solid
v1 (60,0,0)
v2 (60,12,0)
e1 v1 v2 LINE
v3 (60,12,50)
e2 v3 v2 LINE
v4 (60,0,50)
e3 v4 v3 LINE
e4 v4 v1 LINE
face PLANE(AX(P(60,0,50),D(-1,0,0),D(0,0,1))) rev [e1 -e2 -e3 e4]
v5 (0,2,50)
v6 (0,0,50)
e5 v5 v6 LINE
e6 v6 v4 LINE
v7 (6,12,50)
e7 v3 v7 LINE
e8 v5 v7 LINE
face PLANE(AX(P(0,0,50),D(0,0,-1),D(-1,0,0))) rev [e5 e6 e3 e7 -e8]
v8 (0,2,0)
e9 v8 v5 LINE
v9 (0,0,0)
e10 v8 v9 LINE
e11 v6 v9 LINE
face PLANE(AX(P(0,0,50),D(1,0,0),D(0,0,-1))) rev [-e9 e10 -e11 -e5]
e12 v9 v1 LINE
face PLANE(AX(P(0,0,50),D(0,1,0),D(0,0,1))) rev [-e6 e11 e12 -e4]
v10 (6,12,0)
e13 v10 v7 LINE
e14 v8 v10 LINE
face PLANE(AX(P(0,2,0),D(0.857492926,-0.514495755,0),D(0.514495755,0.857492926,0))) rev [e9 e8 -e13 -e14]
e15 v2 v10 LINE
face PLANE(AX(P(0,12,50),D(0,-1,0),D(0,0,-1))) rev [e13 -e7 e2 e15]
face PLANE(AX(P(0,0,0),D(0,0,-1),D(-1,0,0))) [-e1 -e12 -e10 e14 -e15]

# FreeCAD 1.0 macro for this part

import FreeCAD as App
import Part
import Sketcher

V = App.Vector
Q = App.Units.Quantity


def add_polygon(sketch, points):
    """Adds a closed chain of lines whose ends are joined by coincident constraints."""
    first, n = sketch.GeometryCount, len(points)
    for a, b in zip(points, points[1:] + points[:1]):
        sketch.addGeometry(Part.LineSegment(App.Vector(*a, 0), App.Vector(*b, 0)), False)
    for i in range(n):
        sketch.addConstraint(Sketcher.Constraint("Coincident", first + i, 2, first + (i + 1) % n, 1))

doc = App.newDocument("Part")
body = doc.addObject("PartDesign::Body", "Body")

# Sketch on XY plane
sketch1 = body.newObject("Sketcher::SketchObject", "Sketch")
sketch1.AttachmentSupport = (doc.getObject("XY_Plane"), [""])
sketch1.MapMode = "FlatFace"
add_polygon(sketch1, [(0, 12), (0, 0), (60, 0), (60, 12)])  # lines 0-3
sketch1.addConstraint([
    Sketcher.Constraint("Vertical", 0),
    Sketcher.Constraint("Horizontal", 1),
    Sketcher.Constraint("Vertical", 2),
    Sketcher.Constraint("Horizontal", 3),
    Sketcher.Constraint("Coincident", 0, 2, -1, 1),
    Sketcher.Constraint("DistanceX", 1, 1, 1, 2, Q("60 mm")),
    Sketcher.Constraint("DistanceY", 0, 2, 0, 1, Q("12 mm")),
])
pad1 = body.newObject("PartDesign::Pad", "Pad")
pad1.Profile = sketch1
pad1.Length = 50

# Sketch on XY plane
sketch2 = body.newObject("Sketcher::SketchObject", "Sketch001")
sketch2.AttachmentSupport = (doc.getObject("XY_Plane"), [""])
sketch2.MapMode = "FlatFace"
sketch2.AttachmentOffset = App.Placement(V(0, 0, 50), App.Rotation())
add_polygon(sketch2, [(0, 2), (6, 12), (0, 12)])  # lines 0-2
sketch2.addConstraint([
    Sketcher.Constraint("Horizontal", 1),
    Sketcher.Constraint("Vertical", 2),
    Sketcher.Constraint("PointOnObject", 1, 2, -2),
    Sketcher.Constraint("DistanceX", 1, 2, 1, 1, Q("6 mm")),
    Sketcher.Constraint("DistanceY", 2, 2, 2, 1, Q("10 mm")),
    Sketcher.Constraint("DistanceY", -1, 1, 0, 2, Q("12 mm")),
])
pocket1 = body.newObject("PartDesign::Pocket", "Pocket")
pocket1.Profile = sketch2
pocket1.Type = "ThroughAll"

doc.recompute()
